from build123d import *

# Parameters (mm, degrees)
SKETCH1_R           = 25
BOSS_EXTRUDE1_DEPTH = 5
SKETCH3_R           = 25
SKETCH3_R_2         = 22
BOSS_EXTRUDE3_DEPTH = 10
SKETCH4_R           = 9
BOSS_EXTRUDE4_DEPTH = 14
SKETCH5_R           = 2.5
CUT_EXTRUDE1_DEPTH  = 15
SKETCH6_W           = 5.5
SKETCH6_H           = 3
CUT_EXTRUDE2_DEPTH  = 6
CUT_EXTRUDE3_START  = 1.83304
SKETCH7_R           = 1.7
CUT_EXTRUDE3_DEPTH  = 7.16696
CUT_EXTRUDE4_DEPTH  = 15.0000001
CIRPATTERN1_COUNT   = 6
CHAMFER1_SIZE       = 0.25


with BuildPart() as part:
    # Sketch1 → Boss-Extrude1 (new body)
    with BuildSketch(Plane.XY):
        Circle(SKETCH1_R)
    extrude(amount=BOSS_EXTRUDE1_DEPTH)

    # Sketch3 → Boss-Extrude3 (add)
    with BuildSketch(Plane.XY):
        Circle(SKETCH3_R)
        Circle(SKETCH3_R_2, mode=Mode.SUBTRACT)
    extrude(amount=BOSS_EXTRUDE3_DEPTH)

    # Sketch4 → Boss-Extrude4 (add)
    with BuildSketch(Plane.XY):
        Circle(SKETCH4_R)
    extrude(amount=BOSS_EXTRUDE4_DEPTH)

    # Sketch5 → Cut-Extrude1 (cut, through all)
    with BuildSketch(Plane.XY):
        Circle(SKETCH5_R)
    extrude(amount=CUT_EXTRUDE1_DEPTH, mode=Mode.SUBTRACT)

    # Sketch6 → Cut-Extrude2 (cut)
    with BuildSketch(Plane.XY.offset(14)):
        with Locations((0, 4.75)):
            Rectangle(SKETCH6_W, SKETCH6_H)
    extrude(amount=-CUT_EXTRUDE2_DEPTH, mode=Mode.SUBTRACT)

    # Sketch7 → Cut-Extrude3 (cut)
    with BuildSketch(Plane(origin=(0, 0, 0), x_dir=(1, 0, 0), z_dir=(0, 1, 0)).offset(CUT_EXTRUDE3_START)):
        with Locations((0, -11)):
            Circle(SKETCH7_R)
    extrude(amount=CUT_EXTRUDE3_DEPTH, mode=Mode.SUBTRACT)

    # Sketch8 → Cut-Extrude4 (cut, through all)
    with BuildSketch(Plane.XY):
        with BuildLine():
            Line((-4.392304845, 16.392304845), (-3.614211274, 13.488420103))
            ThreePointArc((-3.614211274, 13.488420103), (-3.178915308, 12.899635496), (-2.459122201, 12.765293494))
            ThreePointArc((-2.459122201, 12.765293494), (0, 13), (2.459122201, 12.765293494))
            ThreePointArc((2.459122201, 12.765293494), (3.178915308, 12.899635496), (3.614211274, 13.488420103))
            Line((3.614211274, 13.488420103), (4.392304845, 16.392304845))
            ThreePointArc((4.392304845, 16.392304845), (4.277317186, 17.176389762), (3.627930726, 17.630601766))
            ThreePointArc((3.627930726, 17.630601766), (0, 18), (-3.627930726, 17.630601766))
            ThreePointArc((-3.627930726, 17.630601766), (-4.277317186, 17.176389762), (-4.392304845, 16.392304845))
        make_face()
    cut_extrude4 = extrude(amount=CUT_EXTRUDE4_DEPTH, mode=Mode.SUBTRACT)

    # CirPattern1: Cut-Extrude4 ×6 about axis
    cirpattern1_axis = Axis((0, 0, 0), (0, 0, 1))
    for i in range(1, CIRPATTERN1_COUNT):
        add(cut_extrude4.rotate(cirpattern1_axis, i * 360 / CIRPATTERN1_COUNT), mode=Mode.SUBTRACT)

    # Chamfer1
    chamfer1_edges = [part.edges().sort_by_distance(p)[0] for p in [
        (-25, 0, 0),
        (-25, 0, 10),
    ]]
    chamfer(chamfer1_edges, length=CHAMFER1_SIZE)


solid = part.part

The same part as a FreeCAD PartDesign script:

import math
import FreeCAD as App
import Part
import Sketcher
from FreeCAD import Vector
Q = App.Units.Quantity


def edges_at(feature, points):
    """Names of the edges that pass closest to the given points."""
    edges = feature.Shape.Edges
    near = lambda p: min(range(len(edges)), key=lambda i: edges[i].distToShape(Part.Vertex(*p))[0])
    return sorted({f"Edge{near(p) + 1}" for p in points})

doc = App.newDocument("Part")
params = doc.addObject("Spreadsheet::Sheet", "Params")
for row, (alias, value) in enumerate([
    ("sketch1_diameter", "50 mm"),
    ("pad1_length", "5 mm"),
    ("sketch2_diameter", "50 mm"),
    ("sketch2_diameter2", "44 mm"),
    ("pad2_length", "10 mm"),
    ("sketch3_diameter", "18 mm"),
    ("pad3_length", "14 mm"),
    ("sketch4_diameter", "5 mm"),
    ("sketch5_height", "3 mm"),
    ("sketch5_width", "5.5 mm"),
    ("pocket2_length", "6 mm"),
    ("sketch6_diameter", "3.4 mm"),
    ("pocket3_length", "7.16696 mm"),
    ("sketch7_radius", "1 mm"),
    ("sketch7_radius2", "13 mm"),
    ("sketch7_radius3", "18 mm"),
    ("chamfer_size", "0.25 mm"),
], start=1):
    params.set(f"A{row}", alias)
    params.set(f"B{row}", "=" + value)
    params.setAlias(f"B{row}", alias)

body = doc.addObject("PartDesign::Body", "Body")

# Sketch on XY plane
sketch1 = body.newObject("Sketcher::SketchObject", "Sketch")
sketch1.AttachmentSupport = (doc.getObject("XY_Plane"), [""])
sketch1.MapMode = "FlatFace"
sketch1.addGeometry(Part.Circle(Vector(0, 0, 0), Vector(0, 0, 1), 25), False)
sketch1.addConstraint(Sketcher.Constraint("Coincident", 0, 3, -1, 1))
sketch1.addConstraint(Sketcher.Constraint("Diameter", 0, Q("50 mm")))
sketch1.setExpression("Constraints[1]", "Params.sketch1_diameter")
pad1 = body.newObject("PartDesign::Pad", "Pad")
pad1.Profile = sketch1
pad1.setExpression("Length", "Params.pad1_length")

# Sketch on XY plane
sketch2 = body.newObject("Sketcher::SketchObject", "Sketch001")
sketch2.AttachmentSupport = (doc.getObject("XY_Plane"), [""])
sketch2.MapMode = "FlatFace"
sketch2.addGeometry(Part.Circle(Vector(0, 0, 0), Vector(0, 0, 1), 25), False)
sketch2.addGeometry(Part.Circle(Vector(0, 0, 0), Vector(0, 0, 1), 22), False)
sketch2.addConstraint(Sketcher.Constraint("Coincident", 0, 3, -1, 1))
sketch2.addConstraint(Sketcher.Constraint("Coincident", 1, 3, -1, 1))
sketch2.addConstraint(Sketcher.Constraint("Diameter", 0, Q("50 mm")))
sketch2.addConstraint(Sketcher.Constraint("Diameter", 1, Q("44 mm")))
sketch2.setExpression("Constraints[2]", "Params.sketch2_diameter")
sketch2.setExpression("Constraints[3]", "Params.sketch2_diameter2")
pad2 = body.newObject("PartDesign::Pad", "Pad001")
pad2.Profile = sketch2
pad2.setExpression("Length", "Params.pad2_length")

# Sketch on XY plane
sketch3 = body.newObject("Sketcher::SketchObject", "Sketch002")
sketch3.AttachmentSupport = (doc.getObject("XY_Plane"), [""])
sketch3.MapMode = "FlatFace"
sketch3.addGeometry(Part.Circle(Vector(0, 0, 0), Vector(0, 0, 1), 9), False)
sketch3.addConstraint(Sketcher.Constraint("Coincident", 0, 3, -1, 1))
sketch3.addConstraint(Sketcher.Constraint("Diameter", 0, Q("18 mm")))
sketch3.setExpression("Constraints[1]", "Params.sketch3_diameter")
pad3 = body.newObject("PartDesign::Pad", "Pad002")
pad3.Profile = sketch3
pad3.setExpression("Length", "Params.pad3_length")

# Sketch on XY plane
sketch4 = body.newObject("Sketcher::SketchObject", "Sketch003")
sketch4.AttachmentSupport = (doc.getObject("XY_Plane"), [""])
sketch4.MapMode = "FlatFace"
sketch4.addGeometry(Part.Circle(Vector(0, 0, 0), Vector(0, 0, 1), 2.5), False)
sketch4.addConstraint(Sketcher.Constraint("Coincident", 0, 3, -1, 1))
sketch4.addConstraint(Sketcher.Constraint("Diameter", 0, Q("5 mm")))
sketch4.setExpression("Constraints[1]", "Params.sketch4_diameter")
pocket1 = body.newObject("PartDesign::Pocket", "Pocket")
pocket1.Profile = sketch4
pocket1.Type = "ThroughAll"
pocket1.Reversed = True

# Sketch on XY plane
sketch5 = body.newObject("Sketcher::SketchObject", "Sketch004")
sketch5.AttachmentSupport = (doc.getObject("XY_Plane"), [""])
sketch5.MapMode = "FlatFace"
sketch5.AttachmentOffset = App.Placement(Vector(0, 0, 14), App.Rotation())
sketch5.addGeometry(Part.LineSegment(Vector(-2.8, 6.2, 0), Vector(-2.8, 3.2, 0)), False)
sketch5.addGeometry(Part.LineSegment(Vector(-2.8, 3.2, 0), Vector(2.8, 3.2, 0)), False)
sketch5.addGeometry(Part.LineSegment(Vector(2.8, 3.2, 0), Vector(2.8, 6.2, 0)), False)
sketch5.addGeometry(Part.LineSegment(Vector(2.8, 6.2, 0), Vector(-2.8, 6.2, 0)), False)
sketch5.addConstraint(Sketcher.Constraint("Coincident", 0, 2, 1, 1))
sketch5.addConstraint(Sketcher.Constraint("Coincident", 1, 2, 2, 1))
sketch5.addConstraint(Sketcher.Constraint("Coincident", 2, 2, 3, 1))
sketch5.addConstraint(Sketcher.Constraint("Coincident", 3, 2, 0, 1))
sketch5.addConstraint(Sketcher.Constraint("Vertical", 0))
sketch5.addConstraint(Sketcher.Constraint("Horizontal", 1))
sketch5.addConstraint(Sketcher.Constraint("Vertical", 2))
sketch5.addConstraint(Sketcher.Constraint("Horizontal", 3))
sketch5.addConstraint(Sketcher.Constraint("DistanceY", 0, 2, 0, 1, Q("3 mm")))
sketch5.addConstraint(Sketcher.Constraint("DistanceX", 1, 1, 1, 2, Q("5.5 mm")))
sketch5.addConstraint(Sketcher.Constraint("DistanceX", 0, 2, -1, 1, Q("2.75 mm")))
sketch5.addConstraint(Sketcher.Constraint("DistanceY", -1, 1, 0, 2, Q("3.25 mm")))
sketch5.setExpression("Constraints[8]", "Params.sketch5_height")
sketch5.setExpression("Constraints[9]", "Params.sketch5_width")
pocket2 = body.newObject("PartDesign::Pocket", "Pocket001")
pocket2.Profile = sketch5
pocket2.setExpression("Length", "Params.pocket2_length")

# Sketch on XZ plane
sketch6 = body.newObject("Sketcher::SketchObject", "Sketch005")
sketch6.AttachmentSupport = (doc.getObject("XZ_Plane"), [""])
sketch6.MapMode = "FlatFace"
sketch6.AttachmentOffset = App.Placement(Vector(0, 0, -1.83304), App.Rotation())
sketch6.addGeometry(Part.Circle(Vector(0, 11, 0), Vector(0, 0, 1), 1.7), False)
sketch6.addConstraint(Sketcher.Constraint("PointOnObject", 0, 3, -2))
sketch6.addConstraint(Sketcher.Constraint("Diameter", 0, Q("3.4 mm")))
sketch6.addConstraint(Sketcher.Constraint("DistanceY", -1, 1, 0, 3, Q("11 mm")))
sketch6.setExpression("Constraints[1]", "Params.sketch6_diameter")
pocket3 = body.newObject("PartDesign::Pocket", "Pocket002")
pocket3.Profile = sketch6
pocket3.setExpression("Length", "Params.pocket3_length")

# Sketch on XY plane
sketch7 = body.newObject("Sketcher::SketchObject", "Sketch006")
sketch7.AttachmentSupport = (doc.getObject("XY_Plane"), [""])
sketch7.MapMode = "FlatFace"
sketch7.addGeometry(Part.LineSegment(Vector(-4.4, 16.4, 0), Vector(-3.6, 13.5, 0)), False)
sketch7.addGeometry(Part.ArcOfCircle(Part.Circle(Vector(-2.6, 13.7, 0), Vector(0, 0, 1), 1), math.radians(-165), math.radians(-79)), False)
sketch7.addGeometry(Part.ArcOfCircle(Part.Circle(Vector(0, 0, 0), Vector(0, 0, 1), 13), math.radians(79), math.radians(101)), False)
sketch7.addGeometry(Part.ArcOfCircle(Part.Circle(Vector(2.6, 13.7, 0), Vector(0, 0, 1), 1), math.radians(-101), math.radians(-15)), False)
sketch7.addGeometry(Part.LineSegment(Vector(3.6, 13.5, 0), Vector(4.4, 16.4, 0)), False)
sketch7.addGeometry(Part.ArcOfCircle(Part.Circle(Vector(3.4, 16.7, 0), Vector(0, 0, 1), 1), math.radians(-15), math.radians(78)), False)
sketch7.addGeometry(Part.ArcOfCircle(Part.Circle(Vector(0, 0, 0), Vector(0, 0, 1), 18), math.radians(78), math.radians(102)), False)
sketch7.addGeometry(Part.ArcOfCircle(Part.Circle(Vector(-3.4, 16.7, 0), Vector(0, 0, 1), 1), math.radians(102), math.radians(195)), False)
sketch7.addConstraint(Sketcher.Constraint("Tangent", 0, 2, 1, 1))
sketch7.addConstraint(Sketcher.Constraint("Tangent", 1, 2, 2, 2))
sketch7.addConstraint(Sketcher.Constraint("Tangent", 2, 1, 3, 1))
sketch7.addConstraint(Sketcher.Constraint("Tangent", 3, 2, 4, 1))
sketch7.addConstraint(Sketcher.Constraint("Tangent", 4, 2, 5, 1))
sketch7.addConstraint(Sketcher.Constraint("Tangent", 5, 2, 6, 1))
sketch7.addConstraint(Sketcher.Constraint("Tangent", 6, 2, 7, 1))
sketch7.addConstraint(Sketcher.Constraint("Tangent", 7, 2, 0, 1))
sketch7.addConstraint(Sketcher.Constraint("Coincident", 2, 3, -1, 1))
sketch7.addConstraint(Sketcher.Constraint("Coincident", 6, 3, -1, 1))
sketch7.addConstraint(Sketcher.Constraint("Equal", 1, 3))
sketch7.addConstraint(Sketcher.Constraint("Equal", 3, 5))
sketch7.addConstraint(Sketcher.Constraint("Equal", 5, 7))
sketch7.addConstraint(Sketcher.Constraint("Symmetric", 0, 2, 3, 2, -2))
sketch7.addConstraint(Sketcher.Constraint("Radius", 1, Q("1 mm")))
sketch7.addConstraint(Sketcher.Constraint("Radius", 2, Q("13 mm")))
sketch7.addConstraint(Sketcher.Constraint("Radius", 6, Q("18 mm")))
sketch7.addConstraint(Sketcher.Constraint("Angle", 0, Q("-75 deg")))
sketch7.addConstraint(Sketcher.Constraint("DistanceY", -1, 1, 5, 2, Q("17.630602 mm")))
sketch7.setExpression("Constraints[14]", "Params.sketch7_radius")
sketch7.setExpression("Constraints[15]", "Params.sketch7_radius2")
sketch7.setExpression("Constraints[16]", "Params.sketch7_radius3")
pocket4 = body.newObject("PartDesign::Pocket", "Pocket003")
pocket4.Profile = sketch7
pocket4.Type = "ThroughAll"
pocket4.Reversed = True
doc.recompute()

polarpattern = body.newObject("PartDesign::PolarPattern", "PolarPattern")
polarpattern.Originals = [pocket4]
polarpattern.Axis = (doc.getObject("Z_Axis"), [""])
polarpattern.Angle = 360
polarpattern.Occurrences = 6
body.Tip = polarpattern
doc.recompute()

chamfer = body.newObject("PartDesign::Chamfer", "Chamfer")
chamfer.Base = (polarpattern, edges_at(polarpattern, [(-25, 0, 0), (-25, 0, 10)]))
chamfer.setExpression("Size", "Params.chamfer_size")

doc.recompute()
